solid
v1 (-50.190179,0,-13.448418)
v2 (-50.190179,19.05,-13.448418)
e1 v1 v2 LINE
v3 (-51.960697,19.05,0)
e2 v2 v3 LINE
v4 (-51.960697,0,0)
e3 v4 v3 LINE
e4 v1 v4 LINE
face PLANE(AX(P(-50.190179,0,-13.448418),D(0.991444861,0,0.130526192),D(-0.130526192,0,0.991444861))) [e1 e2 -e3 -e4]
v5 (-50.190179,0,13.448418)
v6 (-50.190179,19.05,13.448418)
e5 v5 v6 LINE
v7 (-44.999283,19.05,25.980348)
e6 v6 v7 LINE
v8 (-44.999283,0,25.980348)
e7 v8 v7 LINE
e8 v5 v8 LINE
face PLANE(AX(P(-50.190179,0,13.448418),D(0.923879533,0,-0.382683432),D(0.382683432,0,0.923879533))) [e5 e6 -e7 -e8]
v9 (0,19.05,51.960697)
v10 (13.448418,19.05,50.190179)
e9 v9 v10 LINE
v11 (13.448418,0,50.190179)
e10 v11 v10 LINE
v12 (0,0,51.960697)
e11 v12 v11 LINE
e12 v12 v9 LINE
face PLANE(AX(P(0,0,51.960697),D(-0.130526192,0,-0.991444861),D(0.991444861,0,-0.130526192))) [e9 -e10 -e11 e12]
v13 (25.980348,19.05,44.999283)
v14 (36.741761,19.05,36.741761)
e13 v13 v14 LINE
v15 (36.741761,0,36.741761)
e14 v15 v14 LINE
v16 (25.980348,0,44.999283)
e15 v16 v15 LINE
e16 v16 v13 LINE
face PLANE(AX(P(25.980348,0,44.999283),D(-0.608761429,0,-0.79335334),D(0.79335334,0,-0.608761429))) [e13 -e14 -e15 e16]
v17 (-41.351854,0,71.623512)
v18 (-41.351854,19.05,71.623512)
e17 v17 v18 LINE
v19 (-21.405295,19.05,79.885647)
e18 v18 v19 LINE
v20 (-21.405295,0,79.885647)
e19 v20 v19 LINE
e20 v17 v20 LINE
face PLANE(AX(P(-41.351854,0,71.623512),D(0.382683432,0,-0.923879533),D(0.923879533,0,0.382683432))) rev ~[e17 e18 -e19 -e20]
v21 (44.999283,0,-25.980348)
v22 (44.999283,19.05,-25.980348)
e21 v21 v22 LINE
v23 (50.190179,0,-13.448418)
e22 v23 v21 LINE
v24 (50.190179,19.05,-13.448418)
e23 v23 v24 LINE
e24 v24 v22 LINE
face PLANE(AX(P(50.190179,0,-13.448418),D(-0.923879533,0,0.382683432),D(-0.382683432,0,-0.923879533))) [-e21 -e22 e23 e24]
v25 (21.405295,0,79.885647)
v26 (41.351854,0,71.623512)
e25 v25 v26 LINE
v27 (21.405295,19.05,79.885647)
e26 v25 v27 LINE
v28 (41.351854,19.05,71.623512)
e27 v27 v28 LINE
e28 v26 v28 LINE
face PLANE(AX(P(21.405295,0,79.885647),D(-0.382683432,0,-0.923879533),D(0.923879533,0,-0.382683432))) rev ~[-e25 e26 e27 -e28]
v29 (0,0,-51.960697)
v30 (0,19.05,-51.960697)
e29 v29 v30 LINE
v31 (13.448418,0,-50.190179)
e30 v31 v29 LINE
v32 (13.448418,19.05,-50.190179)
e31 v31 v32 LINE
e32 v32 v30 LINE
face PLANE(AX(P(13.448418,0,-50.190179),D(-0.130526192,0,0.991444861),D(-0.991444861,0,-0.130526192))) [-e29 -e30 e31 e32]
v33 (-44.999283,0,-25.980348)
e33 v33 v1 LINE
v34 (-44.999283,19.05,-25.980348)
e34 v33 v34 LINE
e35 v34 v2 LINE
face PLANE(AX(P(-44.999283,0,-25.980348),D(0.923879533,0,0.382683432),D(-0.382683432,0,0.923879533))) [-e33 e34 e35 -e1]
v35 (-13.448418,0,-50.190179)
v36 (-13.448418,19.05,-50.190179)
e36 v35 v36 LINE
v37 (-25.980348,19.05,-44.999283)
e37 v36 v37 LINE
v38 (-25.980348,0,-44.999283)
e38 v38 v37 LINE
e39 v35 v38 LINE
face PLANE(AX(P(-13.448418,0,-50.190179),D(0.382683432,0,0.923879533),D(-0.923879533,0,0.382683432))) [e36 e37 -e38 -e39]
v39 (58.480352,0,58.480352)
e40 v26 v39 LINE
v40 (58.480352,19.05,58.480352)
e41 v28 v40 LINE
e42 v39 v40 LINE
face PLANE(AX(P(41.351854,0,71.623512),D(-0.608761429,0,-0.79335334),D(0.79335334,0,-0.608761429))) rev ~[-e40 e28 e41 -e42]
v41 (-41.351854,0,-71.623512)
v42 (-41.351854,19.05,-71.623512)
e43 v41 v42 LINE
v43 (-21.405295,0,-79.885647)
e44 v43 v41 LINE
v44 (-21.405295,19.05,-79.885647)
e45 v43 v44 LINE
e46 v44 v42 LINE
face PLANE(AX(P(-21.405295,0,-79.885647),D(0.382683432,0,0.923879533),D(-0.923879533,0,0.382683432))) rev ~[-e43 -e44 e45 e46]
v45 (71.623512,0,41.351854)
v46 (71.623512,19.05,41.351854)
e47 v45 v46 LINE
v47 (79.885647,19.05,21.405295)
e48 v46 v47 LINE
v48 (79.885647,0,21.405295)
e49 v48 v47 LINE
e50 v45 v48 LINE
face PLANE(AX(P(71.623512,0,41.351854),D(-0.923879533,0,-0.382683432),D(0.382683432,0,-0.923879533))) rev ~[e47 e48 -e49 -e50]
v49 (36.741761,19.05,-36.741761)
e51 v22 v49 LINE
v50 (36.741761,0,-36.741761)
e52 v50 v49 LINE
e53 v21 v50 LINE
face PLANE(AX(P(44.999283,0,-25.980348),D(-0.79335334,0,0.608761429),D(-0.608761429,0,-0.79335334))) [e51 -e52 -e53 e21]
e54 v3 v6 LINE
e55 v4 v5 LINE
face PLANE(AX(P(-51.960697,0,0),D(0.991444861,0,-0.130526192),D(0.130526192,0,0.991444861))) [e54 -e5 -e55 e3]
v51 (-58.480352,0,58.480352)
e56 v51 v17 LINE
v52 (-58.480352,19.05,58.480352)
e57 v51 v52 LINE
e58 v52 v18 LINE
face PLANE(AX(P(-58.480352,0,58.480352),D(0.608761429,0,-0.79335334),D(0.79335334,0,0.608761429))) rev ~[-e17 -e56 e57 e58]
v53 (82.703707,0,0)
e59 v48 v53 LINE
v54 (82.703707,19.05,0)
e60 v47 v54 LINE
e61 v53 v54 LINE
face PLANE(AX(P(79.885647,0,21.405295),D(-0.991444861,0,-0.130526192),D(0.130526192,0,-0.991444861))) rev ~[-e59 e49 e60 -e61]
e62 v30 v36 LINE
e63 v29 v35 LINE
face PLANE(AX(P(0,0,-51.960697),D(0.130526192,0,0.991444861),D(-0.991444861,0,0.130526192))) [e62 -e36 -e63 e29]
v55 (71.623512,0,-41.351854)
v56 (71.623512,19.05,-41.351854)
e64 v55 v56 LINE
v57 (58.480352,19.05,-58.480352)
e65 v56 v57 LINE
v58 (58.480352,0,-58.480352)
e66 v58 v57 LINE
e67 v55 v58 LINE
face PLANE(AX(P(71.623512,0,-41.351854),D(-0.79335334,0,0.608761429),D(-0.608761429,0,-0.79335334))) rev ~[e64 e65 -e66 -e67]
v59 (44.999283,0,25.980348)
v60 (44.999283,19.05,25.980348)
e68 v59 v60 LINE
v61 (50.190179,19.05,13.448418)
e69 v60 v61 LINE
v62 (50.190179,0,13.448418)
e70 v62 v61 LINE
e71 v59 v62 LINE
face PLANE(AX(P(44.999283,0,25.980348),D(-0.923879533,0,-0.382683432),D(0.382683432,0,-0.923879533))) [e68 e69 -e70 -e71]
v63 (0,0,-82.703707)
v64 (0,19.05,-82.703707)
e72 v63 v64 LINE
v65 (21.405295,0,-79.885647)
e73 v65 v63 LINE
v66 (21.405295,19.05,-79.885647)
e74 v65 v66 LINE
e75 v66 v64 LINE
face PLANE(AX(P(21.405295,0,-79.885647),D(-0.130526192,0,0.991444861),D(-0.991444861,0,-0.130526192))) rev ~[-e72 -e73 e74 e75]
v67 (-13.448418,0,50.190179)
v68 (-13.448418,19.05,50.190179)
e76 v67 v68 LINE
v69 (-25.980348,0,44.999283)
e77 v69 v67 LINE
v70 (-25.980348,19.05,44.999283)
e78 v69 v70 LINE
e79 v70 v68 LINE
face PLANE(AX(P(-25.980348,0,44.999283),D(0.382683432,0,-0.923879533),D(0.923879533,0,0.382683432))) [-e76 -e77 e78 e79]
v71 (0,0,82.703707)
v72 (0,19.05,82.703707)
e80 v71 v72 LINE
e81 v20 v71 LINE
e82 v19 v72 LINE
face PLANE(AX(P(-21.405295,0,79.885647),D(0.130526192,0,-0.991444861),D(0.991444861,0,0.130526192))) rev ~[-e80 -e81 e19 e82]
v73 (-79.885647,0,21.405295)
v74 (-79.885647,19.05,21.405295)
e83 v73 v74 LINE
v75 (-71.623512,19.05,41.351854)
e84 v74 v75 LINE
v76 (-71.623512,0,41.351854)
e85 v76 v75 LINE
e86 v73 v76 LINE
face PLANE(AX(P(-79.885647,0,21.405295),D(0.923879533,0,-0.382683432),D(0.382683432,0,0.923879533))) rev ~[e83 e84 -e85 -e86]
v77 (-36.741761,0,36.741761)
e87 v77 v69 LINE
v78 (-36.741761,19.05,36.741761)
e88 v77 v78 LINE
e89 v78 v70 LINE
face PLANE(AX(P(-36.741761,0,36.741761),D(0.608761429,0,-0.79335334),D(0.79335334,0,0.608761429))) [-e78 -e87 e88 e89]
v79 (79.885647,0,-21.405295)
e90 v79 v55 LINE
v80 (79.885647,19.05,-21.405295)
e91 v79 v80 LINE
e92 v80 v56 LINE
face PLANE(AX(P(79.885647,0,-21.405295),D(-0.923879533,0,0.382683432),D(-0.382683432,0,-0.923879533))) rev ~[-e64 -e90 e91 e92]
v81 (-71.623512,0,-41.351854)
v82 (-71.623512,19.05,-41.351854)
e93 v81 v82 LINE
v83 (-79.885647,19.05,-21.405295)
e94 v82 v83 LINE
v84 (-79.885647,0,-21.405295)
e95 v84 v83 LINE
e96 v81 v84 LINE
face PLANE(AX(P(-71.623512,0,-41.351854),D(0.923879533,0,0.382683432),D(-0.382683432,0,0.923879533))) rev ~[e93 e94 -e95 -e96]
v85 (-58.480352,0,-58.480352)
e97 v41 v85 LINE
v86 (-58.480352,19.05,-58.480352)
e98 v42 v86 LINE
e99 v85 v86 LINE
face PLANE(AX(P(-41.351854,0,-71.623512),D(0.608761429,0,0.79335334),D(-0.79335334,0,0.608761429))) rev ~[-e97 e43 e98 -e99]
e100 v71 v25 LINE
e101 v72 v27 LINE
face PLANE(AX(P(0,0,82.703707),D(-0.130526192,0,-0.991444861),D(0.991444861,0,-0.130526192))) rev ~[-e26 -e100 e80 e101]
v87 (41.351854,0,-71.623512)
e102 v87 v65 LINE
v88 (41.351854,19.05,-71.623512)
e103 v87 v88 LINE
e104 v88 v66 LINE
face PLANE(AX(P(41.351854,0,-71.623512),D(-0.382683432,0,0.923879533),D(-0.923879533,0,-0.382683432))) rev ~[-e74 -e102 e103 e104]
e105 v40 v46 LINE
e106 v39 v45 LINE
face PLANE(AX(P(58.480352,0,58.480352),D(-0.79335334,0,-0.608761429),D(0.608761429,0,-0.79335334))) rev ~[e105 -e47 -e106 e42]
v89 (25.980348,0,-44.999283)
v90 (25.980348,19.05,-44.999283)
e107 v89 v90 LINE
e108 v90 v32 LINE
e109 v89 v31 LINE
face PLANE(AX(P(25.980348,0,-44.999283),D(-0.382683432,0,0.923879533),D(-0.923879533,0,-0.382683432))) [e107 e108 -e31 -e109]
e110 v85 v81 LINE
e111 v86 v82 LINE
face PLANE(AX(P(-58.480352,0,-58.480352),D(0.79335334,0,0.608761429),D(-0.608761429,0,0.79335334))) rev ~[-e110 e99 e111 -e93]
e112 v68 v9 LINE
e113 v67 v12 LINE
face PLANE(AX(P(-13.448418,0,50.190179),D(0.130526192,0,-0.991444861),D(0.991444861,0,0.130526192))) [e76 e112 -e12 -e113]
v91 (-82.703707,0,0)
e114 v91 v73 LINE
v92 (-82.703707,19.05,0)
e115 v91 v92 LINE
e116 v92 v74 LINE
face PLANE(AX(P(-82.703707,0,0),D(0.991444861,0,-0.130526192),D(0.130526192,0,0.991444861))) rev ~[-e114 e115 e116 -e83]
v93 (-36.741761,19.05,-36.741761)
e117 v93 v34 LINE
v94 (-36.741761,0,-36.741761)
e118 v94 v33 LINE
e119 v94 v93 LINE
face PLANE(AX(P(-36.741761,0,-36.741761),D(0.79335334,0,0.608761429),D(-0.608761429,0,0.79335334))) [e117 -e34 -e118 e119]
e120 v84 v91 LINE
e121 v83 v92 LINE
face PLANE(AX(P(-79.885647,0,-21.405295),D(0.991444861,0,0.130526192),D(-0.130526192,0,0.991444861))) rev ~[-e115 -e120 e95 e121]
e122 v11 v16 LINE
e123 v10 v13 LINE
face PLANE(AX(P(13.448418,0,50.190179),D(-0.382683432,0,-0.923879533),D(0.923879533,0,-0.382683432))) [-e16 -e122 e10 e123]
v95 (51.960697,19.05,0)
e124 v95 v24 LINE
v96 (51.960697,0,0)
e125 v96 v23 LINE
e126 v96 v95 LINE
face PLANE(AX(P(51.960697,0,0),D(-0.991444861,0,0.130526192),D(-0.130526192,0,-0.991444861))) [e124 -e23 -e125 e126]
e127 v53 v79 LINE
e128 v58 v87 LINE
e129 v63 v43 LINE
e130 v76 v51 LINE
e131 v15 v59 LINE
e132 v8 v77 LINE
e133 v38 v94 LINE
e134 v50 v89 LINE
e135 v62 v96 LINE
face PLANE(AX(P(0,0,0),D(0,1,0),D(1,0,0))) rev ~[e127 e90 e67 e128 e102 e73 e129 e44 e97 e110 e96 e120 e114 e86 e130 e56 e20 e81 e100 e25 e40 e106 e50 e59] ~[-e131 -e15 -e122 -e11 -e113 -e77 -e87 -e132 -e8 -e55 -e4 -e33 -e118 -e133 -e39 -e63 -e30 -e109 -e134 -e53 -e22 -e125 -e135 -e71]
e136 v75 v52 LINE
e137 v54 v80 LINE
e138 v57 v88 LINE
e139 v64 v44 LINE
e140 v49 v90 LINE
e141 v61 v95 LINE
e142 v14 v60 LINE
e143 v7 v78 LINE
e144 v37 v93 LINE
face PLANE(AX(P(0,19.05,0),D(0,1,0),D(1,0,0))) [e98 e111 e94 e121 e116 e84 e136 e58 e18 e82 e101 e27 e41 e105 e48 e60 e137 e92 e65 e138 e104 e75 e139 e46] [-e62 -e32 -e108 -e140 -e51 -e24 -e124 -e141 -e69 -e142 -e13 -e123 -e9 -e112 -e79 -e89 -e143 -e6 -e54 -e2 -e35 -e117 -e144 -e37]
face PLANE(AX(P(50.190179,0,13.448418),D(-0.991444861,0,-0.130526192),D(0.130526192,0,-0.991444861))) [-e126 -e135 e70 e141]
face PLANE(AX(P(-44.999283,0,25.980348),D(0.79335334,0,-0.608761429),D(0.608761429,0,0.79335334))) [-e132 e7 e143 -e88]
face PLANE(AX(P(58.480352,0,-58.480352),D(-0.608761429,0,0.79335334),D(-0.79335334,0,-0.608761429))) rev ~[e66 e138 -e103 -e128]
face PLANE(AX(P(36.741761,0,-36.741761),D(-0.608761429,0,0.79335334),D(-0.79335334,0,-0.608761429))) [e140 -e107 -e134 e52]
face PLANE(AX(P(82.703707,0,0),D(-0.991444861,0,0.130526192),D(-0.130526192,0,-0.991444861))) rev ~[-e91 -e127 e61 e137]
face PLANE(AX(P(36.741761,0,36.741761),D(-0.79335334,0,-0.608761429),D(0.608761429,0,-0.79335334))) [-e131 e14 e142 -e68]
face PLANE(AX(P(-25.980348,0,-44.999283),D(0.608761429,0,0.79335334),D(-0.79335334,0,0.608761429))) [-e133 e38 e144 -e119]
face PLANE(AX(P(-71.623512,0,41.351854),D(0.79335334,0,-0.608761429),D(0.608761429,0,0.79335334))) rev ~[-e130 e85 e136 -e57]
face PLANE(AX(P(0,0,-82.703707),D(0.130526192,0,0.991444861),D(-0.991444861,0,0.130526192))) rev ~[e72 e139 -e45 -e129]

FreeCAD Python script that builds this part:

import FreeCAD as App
import Part
import Sketcher
from FreeCAD import Vector
Q = App.Units.Quantity


def add_polygon(sketch, points):
    """Adds a closed chain of lines whose ends are joined by coincident constraints."""
    first, n = sketch.GeometryCount, len(points)
    for a, b in zip(points, points[1:] + points[:1]):
        sketch.addGeometry(Part.LineSegment(App.Vector(*a, 0), App.Vector(*b, 0)), False)
    for i in range(n):
        sketch.addConstraint(Sketcher.Constraint("Coincident", first + i, 2, first + (i + 1) % n, 1))

doc = App.newDocument("Part")
body = doc.addObject("PartDesign::Body", "Body")

# Sketch on XZ plane
sketch1 = doc.addObject("Sketcher::SketchObject", "Sketch")
body.addObject(sketch1)
sketch1.AttachmentSupport = (doc.XZ_Plane, [""])
sketch1.MapMode = "FlatFace"
add_polygon(sketch1, [(-83, 0), (-80, 21), (-72, 41), (-58, 58), (-41, 72), (-21, 80), (0, 83), (21, 80), (41, 72), (58, 58), (72, 41), (80, 21), (83, 0), (80, -21), (72, -41), (58, -58), (41, -72), (21, -80), (0, -83), (-21, -80), (-41, -72), (-58, -58), (-72, -41), (-80, -21)])  # lines 0-23
add_polygon(sketch1, [(-50, 13), (-52, 0), (-50, -13), (-45, -26), (-37, -37), (-26, -45), (-13, -50), (0, -52), (13, -50), (26, -45), (37, -37), (45, -26), (50, -13), (52, 0), (50, 13), (45, 26), (37, 37), (26, 45), (13, 50), (0, 52), (-13, 50), (-26, 45), (-37, 37), (-45, 26)])  # lines 24-47
sketch1.addConstraint(Sketcher.Constraint("Symmetric", 0, 2, 12, 2, -1, 1))
sketch1.addConstraint(Sketcher.Constraint("Symmetric", 1, 2, 13, 2, -1, 1))
sketch1.addConstraint(Sketcher.Constraint("Symmetric", 2, 2, 14, 2, -1, 1))
sketch1.addConstraint(Sketcher.Constraint("Symmetric", 3, 2, 15, 2, -1, 1))
sketch1.addConstraint(Sketcher.Constraint("Symmetric", 4, 2, 16, 2, -1, 1))
sketch1.addConstraint(Sketcher.Constraint("Symmetric", 5, 2, 17, 2, -1, 1))
sketch1.addConstraint(Sketcher.Constraint("Symmetric", 6, 2, 18, 2, -1, 1))
sketch1.addConstraint(Sketcher.Constraint("Symmetric", 7, 2, 19, 2, -1, 1))
sketch1.addConstraint(Sketcher.Constraint("Symmetric", 8, 2, 20, 2, -1, 1))
sketch1.addConstraint(Sketcher.Constraint("Symmetric", 9, 2, 21, 2, -1, 1))
sketch1.addConstraint(Sketcher.Constraint("Symmetric", 10, 2, 22, 2, -1, 1))
sketch1.addConstraint(Sketcher.Constraint("Symmetric", 11, 2, 23, 2, -1, 1))
sketch1.addConstraint(Sketcher.Constraint("Symmetric", 24, 2, 36, 2, -1, 1))
sketch1.addConstraint(Sketcher.Constraint("Symmetric", 25, 2, 37, 2, -1, 1))
sketch1.addConstraint(Sketcher.Constraint("Symmetric", 26, 2, 38, 2, -1, 1))
sketch1.addConstraint(Sketcher.Constraint("Symmetric", 27, 2, 39, 2, -1, 1))
sketch1.addConstraint(Sketcher.Constraint("Symmetric", 28, 2, 40, 2, -1, 1))
sketch1.addConstraint(Sketcher.Constraint("Symmetric", 29, 2, 41, 2, -1, 1))
sketch1.addConstraint(Sketcher.Constraint("Symmetric", 30, 2, 42, 2, -1, 1))
sketch1.addConstraint(Sketcher.Constraint("Symmetric", 31, 2, 43, 2, -1, 1))
sketch1.addConstraint(Sketcher.Constraint("Symmetric", 32, 2, 44, 2, -1, 1))
sketch1.addConstraint(Sketcher.Constraint("Symmetric", 33, 2, 45, 2, -1, 1))
sketch1.addConstraint(Sketcher.Constraint("Symmetric", 34, 2, 46, 2, -1, 1))
sketch1.addConstraint(Sketcher.Constraint("Symmetric", 35, 2, 47, 2, -1, 1))
sketch1.addConstraint(Sketcher.Constraint("Symmetric", 4, 2, 6, 2, -2))
sketch1.addConstraint(Sketcher.Constraint("Symmetric", 3, 2, 7, 2, -2))
sketch1.addConstraint(Sketcher.Constraint("Symmetric", 2, 2, 8, 2, -2))
sketch1.addConstraint(Sketcher.Constraint("Symmetric", 1, 2, 9, 2, -2))
sketch1.addConstraint(Sketcher.Constraint("Symmetric", 0, 2, 10, 2, -2))
sketch1.addConstraint(Sketcher.Constraint("Symmetric", 29, 2, 31, 2, -2))
sketch1.addConstraint(Sketcher.Constraint("Symmetric", 28, 2, 32, 2, -2))
sketch1.addConstraint(Sketcher.Constraint("Symmetric", 27, 2, 33, 2, -2))
sketch1.addConstraint(Sketcher.Constraint("Symmetric", 26, 2, 34, 2, -2))
sketch1.addConstraint(Sketcher.Constraint("Symmetric", 25, 2, 35, 2, -2))
sketch1.addConstraint(Sketcher.Constraint("PointOnObject", 5, 2, -2))
sketch1.addConstraint(Sketcher.Constraint("PointOnObject", 11, 2, -1))
sketch1.addConstraint(Sketcher.Constraint("PointOnObject", 24, 2, -1))
sketch1.addConstraint(Sketcher.Constraint("PointOnObject", 30, 2, -2))
sketch1.addConstraint(Sketcher.Constraint("Perpendicular", 0, 6))
sketch1.addConstraint(Sketcher.Constraint("Perpendicular", 1, 7))
sketch1.addConstraint(Sketcher.Constraint("Perpendicular", 2, 8))
sketch1.addConstraint(Sketcher.Constraint("Perpendicular", 18, 24))
sketch1.addConstraint(Sketcher.Constraint("Parallel", 22, 26))
sketch1.addConstraint(Sketcher.Constraint("Parallel", 21, 27))
sketch1.addConstraint(Sketcher.Constraint("Parallel", 20, 28))
sketch1.addConstraint(Sketcher.Constraint("Parallel", 19, 29))
sketch1.addConstraint(Sketcher.Constraint("Perpendicular", 24, 30))
sketch1.addConstraint(Sketcher.Constraint("Equal", 0, 1))
sketch1.addConstraint(Sketcher.Constraint("Equal", 1, 2))
sketch1.addConstraint(Sketcher.Constraint("Equal", 2, 3))
sketch1.addConstraint(Sketcher.Constraint("Equal", 3, 4))
sketch1.addConstraint(Sketcher.Constraint("Equal", 4, 5))
sketch1.addConstraint(Sketcher.Constraint("Equal", 25, 26))
sketch1.addConstraint(Sketcher.Constraint("Equal", 26, 27))
sketch1.addConstraint(Sketcher.Constraint("Equal", 27, 28))
sketch1.addConstraint(Sketcher.Constraint("Equal", 28, 29))
sketch1.addConstraint(Sketcher.Constraint("Equal", 29, 30))
sketch1.addConstraint(Sketcher.Constraint("Angle", 0, Q("82.5 deg")))
sketch1.addConstraint(Sketcher.Constraint("Angle", 1, Q("67.5 deg")))
sketch1.addConstraint(Sketcher.Constraint("Angle", 2, Q("52.5 deg")))
sketch1.addConstraint(Sketcher.Constraint("Distance", 0, Q("0.85 in")))
sketch1.addConstraint(Sketcher.Constraint("DistanceX", 25, 2, -1, 1, 50.190179))
pad1 = doc.addObject("PartDesign::Pad", "Pad")
body.addObject(pad1)
pad1.Profile = sketch1
pad1.Length = Q("0.75 in")
pad1.Reversed = True

doc.recompute()
